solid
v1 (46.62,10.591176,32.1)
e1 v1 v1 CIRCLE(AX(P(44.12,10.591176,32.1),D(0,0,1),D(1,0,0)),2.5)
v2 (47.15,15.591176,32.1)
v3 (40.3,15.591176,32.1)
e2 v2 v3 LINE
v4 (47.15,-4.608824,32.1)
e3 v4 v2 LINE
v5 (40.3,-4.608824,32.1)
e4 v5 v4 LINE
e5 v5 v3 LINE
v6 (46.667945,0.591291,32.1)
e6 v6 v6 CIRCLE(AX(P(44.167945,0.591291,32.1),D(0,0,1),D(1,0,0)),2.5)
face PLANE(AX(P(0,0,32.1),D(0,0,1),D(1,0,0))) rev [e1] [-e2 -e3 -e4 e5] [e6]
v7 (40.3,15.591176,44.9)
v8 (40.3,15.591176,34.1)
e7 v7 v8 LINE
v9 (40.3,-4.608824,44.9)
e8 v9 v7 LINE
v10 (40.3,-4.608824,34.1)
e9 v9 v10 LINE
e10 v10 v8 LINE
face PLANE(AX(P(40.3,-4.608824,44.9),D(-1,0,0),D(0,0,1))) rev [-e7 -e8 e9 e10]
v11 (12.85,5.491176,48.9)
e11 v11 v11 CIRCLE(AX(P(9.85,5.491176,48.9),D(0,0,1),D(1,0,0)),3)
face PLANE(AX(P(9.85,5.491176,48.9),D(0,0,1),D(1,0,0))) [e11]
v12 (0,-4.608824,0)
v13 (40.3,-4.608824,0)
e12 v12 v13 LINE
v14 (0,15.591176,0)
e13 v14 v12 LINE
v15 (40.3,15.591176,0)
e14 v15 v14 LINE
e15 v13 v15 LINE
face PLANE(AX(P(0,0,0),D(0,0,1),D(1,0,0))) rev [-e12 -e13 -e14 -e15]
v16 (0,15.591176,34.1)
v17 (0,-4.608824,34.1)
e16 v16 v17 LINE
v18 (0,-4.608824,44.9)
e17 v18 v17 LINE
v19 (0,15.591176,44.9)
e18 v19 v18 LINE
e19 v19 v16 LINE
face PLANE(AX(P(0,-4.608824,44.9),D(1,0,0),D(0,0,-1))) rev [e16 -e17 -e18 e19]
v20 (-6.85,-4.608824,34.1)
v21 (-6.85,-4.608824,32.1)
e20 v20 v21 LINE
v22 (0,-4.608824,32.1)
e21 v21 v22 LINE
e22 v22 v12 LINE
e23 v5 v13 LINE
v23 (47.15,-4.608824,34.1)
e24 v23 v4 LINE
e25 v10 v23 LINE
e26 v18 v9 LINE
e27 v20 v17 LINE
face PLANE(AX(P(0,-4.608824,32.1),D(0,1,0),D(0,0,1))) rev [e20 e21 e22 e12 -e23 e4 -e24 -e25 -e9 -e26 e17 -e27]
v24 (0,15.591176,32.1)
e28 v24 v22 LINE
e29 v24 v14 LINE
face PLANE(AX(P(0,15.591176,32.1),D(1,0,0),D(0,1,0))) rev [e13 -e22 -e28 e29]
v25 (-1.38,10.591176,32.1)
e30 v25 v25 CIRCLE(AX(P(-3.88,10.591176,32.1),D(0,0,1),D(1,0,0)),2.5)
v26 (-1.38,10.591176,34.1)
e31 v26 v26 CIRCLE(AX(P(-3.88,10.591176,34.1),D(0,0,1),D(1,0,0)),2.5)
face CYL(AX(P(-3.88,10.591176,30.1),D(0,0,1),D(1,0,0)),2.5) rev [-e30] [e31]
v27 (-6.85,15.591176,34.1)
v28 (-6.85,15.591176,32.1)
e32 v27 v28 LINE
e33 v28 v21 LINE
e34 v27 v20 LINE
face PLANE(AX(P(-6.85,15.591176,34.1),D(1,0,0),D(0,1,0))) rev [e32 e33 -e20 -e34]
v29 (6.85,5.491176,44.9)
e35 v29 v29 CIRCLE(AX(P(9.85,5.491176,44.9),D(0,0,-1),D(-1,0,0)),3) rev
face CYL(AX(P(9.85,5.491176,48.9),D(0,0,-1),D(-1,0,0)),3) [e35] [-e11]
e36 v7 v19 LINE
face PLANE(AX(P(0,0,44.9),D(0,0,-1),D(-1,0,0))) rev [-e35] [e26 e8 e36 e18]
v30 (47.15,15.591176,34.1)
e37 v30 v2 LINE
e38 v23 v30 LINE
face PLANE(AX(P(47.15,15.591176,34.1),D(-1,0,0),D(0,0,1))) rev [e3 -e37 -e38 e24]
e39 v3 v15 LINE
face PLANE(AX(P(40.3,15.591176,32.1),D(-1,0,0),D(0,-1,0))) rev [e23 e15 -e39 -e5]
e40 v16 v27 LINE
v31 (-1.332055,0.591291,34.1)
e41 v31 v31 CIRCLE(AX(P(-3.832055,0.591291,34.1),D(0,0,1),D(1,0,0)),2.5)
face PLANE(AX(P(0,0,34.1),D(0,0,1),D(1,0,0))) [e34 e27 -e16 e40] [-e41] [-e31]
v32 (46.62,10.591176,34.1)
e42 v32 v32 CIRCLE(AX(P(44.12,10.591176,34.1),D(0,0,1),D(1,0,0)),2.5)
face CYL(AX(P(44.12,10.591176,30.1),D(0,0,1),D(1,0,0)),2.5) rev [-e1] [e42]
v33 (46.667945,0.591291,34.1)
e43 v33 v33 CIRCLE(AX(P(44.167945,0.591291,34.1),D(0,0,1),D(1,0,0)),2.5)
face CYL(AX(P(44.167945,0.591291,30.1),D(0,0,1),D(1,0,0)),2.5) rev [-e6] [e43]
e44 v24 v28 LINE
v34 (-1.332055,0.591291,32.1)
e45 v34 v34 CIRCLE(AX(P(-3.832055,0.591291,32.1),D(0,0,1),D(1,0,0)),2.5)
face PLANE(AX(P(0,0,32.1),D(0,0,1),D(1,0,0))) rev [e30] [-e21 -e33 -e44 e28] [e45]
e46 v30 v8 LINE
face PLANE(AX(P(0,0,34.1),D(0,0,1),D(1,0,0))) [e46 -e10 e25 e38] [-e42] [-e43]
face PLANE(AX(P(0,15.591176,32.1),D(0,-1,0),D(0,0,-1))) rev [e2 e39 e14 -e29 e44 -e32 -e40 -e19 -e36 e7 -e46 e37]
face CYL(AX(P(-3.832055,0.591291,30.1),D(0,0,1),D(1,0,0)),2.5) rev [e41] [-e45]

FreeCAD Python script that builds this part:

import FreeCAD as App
import Part
import Sketcher

V = App.Vector
Q = App.Units.Quantity

doc = App.newDocument("Part")
params = doc.addObject("Spreadsheet::Sheet", "Params")
for row, (alias, value) in enumerate([
    ("sketch1_width", "40.3 mm"),
    ("sketch1_height", "20.2 mm"),
    ("pad1_length", "32.1 mm"),
    ("sketch2_width", "54 mm"),
    ("sketch2_height", "20.2 mm"),
    ("pad2_length", "2 mm"),
    ("sketch3_width", "40.3 mm"),
    ("sketch3_height", "20.2 mm"),
    ("pad3_length", "10.8 mm"),
    ("sketch4_diameter", "6 mm"),
    ("pad4_length", "4 mm"),
    ("sketch5_diameter", "5 mm"),
    ("pocket1_length", "4 mm"),
], start=1):
    params.set(f"A{row}", alias)
    params.set(f"B{row}", "=" + value)
    params.setAlias(f"B{row}", alias)

body = doc.addObject("PartDesign::Body", "Body")

# Sketch on XY plane
sketch1 = body.newObject("Sketcher::SketchObject", "Sketch")
sketch1.AttachmentSupport = (doc.getObject("XY_Plane"), [""])
sketch1.MapMode = "FlatFace"
sketch1.addGeometry(Part.LineSegment(V(0, 16, 0), V(0, -5, 0)), False)
sketch1.addGeometry(Part.LineSegment(V(0, -5, 0), V(40, -5, 0)), False)
sketch1.addGeometry(Part.LineSegment(V(40, -5, 0), V(40, 16, 0)), False)
sketch1.addGeometry(Part.LineSegment(V(40, 16, 0), V(0, 16, 0)), False)
sketch1.addConstraint(Sketcher.Constraint("Coincident", 0, 2, 1, 1))
sketch1.addConstraint(Sketcher.Constraint("Coincident", 1, 2, 2, 1))
sketch1.addConstraint(Sketcher.Constraint("Coincident", 2, 2, 3, 1))
sketch1.addConstraint(Sketcher.Constraint("Coincident", 3, 2, 0, 1))
sketch1.addConstraint(Sketcher.Constraint("Vertical", 0))
sketch1.addConstraint(Sketcher.Constraint("Horizontal", 1))
sketch1.addConstraint(Sketcher.Constraint("Vertical", 2))
sketch1.addConstraint(Sketcher.Constraint("Horizontal", 3))
sketch1.addConstraint(Sketcher.Constraint("PointOnObject", 0, 2, -2))
sketch1.addConstraint(Sketcher.Constraint("DistanceX", 1, 1, 1, 2, Q("40.3 mm")))
sketch1.addConstraint(Sketcher.Constraint("DistanceY", 0, 2, 0, 1, Q("20.2 mm")))
sketch1.addConstraint(Sketcher.Constraint("DistanceY", 0, 2, -1, 1, Q("4.608824 mm")))
sketch1.setExpression("Constraints[9]", "Params.sketch1_width")
sketch1.setExpression("Constraints[10]", "Params.sketch1_height")
pad1 = body.newObject("PartDesign::Pad", "Pad")
pad1.Profile = sketch1
pad1.setExpression("Length", "Params.pad1_length")

# Sketch on XY plane
sketch2 = body.newObject("Sketcher::SketchObject", "Sketch001")
sketch2.AttachmentSupport = (doc.getObject("XY_Plane"), [""])
sketch2.MapMode = "FlatFace"
sketch2.AttachmentOffset = App.Placement(V(0, 0, 32.1), App.Rotation())
sketch2.addGeometry(Part.LineSegment(V(-7, 16, 0), V(-7, -5, 0)), False)
sketch2.addGeometry(Part.LineSegment(V(-7, -5, 0), V(47, -5, 0)), False)
sketch2.addGeometry(Part.LineSegment(V(47, -5, 0), V(47, 16, 0)), False)
sketch2.addGeometry(Part.LineSegment(V(47, 16, 0), V(-7, 16, 0)), False)
sketch2.addConstraint(Sketcher.Constraint("Coincident", 0, 2, 1, 1))
sketch2.addConstraint(Sketcher.Constraint("Coincident", 1, 2, 2, 1))
sketch2.addConstraint(Sketcher.Constraint("Coincident", 2, 2, 3, 1))
sketch2.addConstraint(Sketcher.Constraint("Coincident", 3, 2, 0, 1))
sketch2.addConstraint(Sketcher.Constraint("Vertical", 0))
sketch2.addConstraint(Sketcher.Constraint("Horizontal", 1))
sketch2.addConstraint(Sketcher.Constraint("Vertical", 2))
sketch2.addConstraint(Sketcher.Constraint("Horizontal", 3))
sketch2.addConstraint(Sketcher.Constraint("DistanceX", 1, 1, 1, 2, Q("54 mm")))
sketch2.addConstraint(Sketcher.Constraint("DistanceY", 0, 2, 0, 1, Q("20.2 mm")))
sketch2.addConstraint(Sketcher.Constraint("DistanceX", 0, 2, -1, 1, Q("6.85 mm")))
sketch2.addConstraint(Sketcher.Constraint("DistanceY", 0, 2, -1, 1, Q("4.608824 mm")))
sketch2.setExpression("Constraints[8]", "Params.sketch2_width")
sketch2.setExpression("Constraints[9]", "Params.sketch2_height")
pad2 = body.newObject("PartDesign::Pad", "Pad001")
pad2.Profile = sketch2
pad2.setExpression("Length", "Params.pad2_length")

# Sketch on XY plane
sketch3 = body.newObject("Sketcher::SketchObject", "Sketch002")
sketch3.AttachmentSupport = (doc.getObject("XY_Plane"), [""])
sketch3.MapMode = "FlatFace"
sketch3.AttachmentOffset = App.Placement(V(0, 0, 34.1), App.Rotation())
sketch3.addGeometry(Part.LineSegment(V(0, 16, 0), V(0, -5, 0)), False)
sketch3.addGeometry(Part.LineSegment(V(0, -5, 0), V(40, -5, 0)), False)
sketch3.addGeometry(Part.LineSegment(V(40, -5, 0), V(40, 16, 0)), False)
sketch3.addGeometry(Part.LineSegment(V(40, 16, 0), V(0, 16, 0)), False)
sketch3.addConstraint(Sketcher.Constraint("Coincident", 0, 2, 1, 1))
sketch3.addConstraint(Sketcher.Constraint("Coincident", 1, 2, 2, 1))
sketch3.addConstraint(Sketcher.Constraint("Coincident", 2, 2, 3, 1))
sketch3.addConstraint(Sketcher.Constraint("Coincident", 3, 2, 0, 1))
sketch3.addConstraint(Sketcher.Constraint("Vertical", 0))
sketch3.addConstraint(Sketcher.Constraint("Horizontal", 1))
sketch3.addConstraint(Sketcher.Constraint("Vertical", 2))
sketch3.addConstraint(Sketcher.Constraint("Horizontal", 3))
sketch3.addConstraint(Sketcher.Constraint("PointOnObject", 0, 2, -2))
sketch3.addConstraint(Sketcher.Constraint("DistanceX", 1, 1, 1, 2, Q("40.3 mm")))
sketch3.addConstraint(Sketcher.Constraint("DistanceY", 0, 2, 0, 1, Q("20.2 mm")))
sketch3.addConstraint(Sketcher.Constraint("DistanceY", 0, 2, -1, 1, Q("4.608824 mm")))
sketch3.setExpression("Constraints[9]", "Params.sketch3_width")
sketch3.setExpression("Constraints[10]", "Params.sketch3_height")
pad3 = body.newObject("PartDesign::Pad", "Pad002")
pad3.Profile = sketch3
pad3.setExpression("Length", "Params.pad3_length")

# Sketch on XY plane
sketch4 = body.newObject("Sketcher::SketchObject", "Sketch003")
sketch4.AttachmentSupport = (doc.getObject("XY_Plane"), [""])
sketch4.MapMode = "FlatFace"
sketch4.AttachmentOffset = App.Placement(V(0, 0, 44.9), App.Rotation())
sketch4.addGeometry(Part.Circle(V(9.8, 5.5, 0), V(0, 0, 1), 3), False)
sketch4.addConstraint(Sketcher.Constraint("Diameter", 0, Q("6 mm")))
sketch4.addConstraint(Sketcher.Constraint("DistanceX", -1, 1, 0, 3, Q("9.85 mm")))
sketch4.addConstraint(Sketcher.Constraint("DistanceY", -1, 1, 0, 3, Q("5.491176 mm")))
sketch4.setExpression("Constraints[0]", "Params.sketch4_diameter")
pad4 = body.newObject("PartDesign::Pad", "Pad003")
pad4.Profile = sketch4
pad4.setExpression("Length", "Params.pad4_length")

# Sketch on XY plane
sketch5 = body.newObject("Sketcher::SketchObject", "Sketch004")
sketch5.AttachmentSupport = (doc.getObject("XY_Plane"), [""])
sketch5.MapMode = "FlatFace"
sketch5.AttachmentOffset = App.Placement(V(0, 0, 34.1), App.Rotation())
sketch5.addGeometry(Part.Circle(V(-3.9, 10.6, 0), V(0, 0, 1), 2.5), False)
sketch5.addGeometry(Part.Circle(V(-3.8, 0.6, 0), V(0, 0, 1), 2.5), False)
sketch5.addGeometry(Part.Circle(V(44.1, 10.6, 0), V(0, 0, 1), 2.5), False)
sketch5.addGeometry(Part.Circle(V(44.2, 0.6, 0), V(0, 0, 1), 2.5), False)
sketch5.addConstraint(Sketcher.Constraint("Equal", 0, 1))
sketch5.addConstraint(Sketcher.Constraint("Equal", 1, 2))
sketch5.addConstraint(Sketcher.Constraint("Equal", 2, 3))
sketch5.addConstraint(Sketcher.Constraint("Horizontal", 0, 3, 2, 3))
sketch5.addConstraint(Sketcher.Constraint("Horizontal", 1, 3, 3, 3))
sketch5.addConstraint(Sketcher.Constraint("Diameter", 0, Q("5 mm")))
sketch5.addConstraint(Sketcher.Constraint("DistanceX", 0, 3, 2, 3, Q("48 mm")))
sketch5.addConstraint(Sketcher.Constraint("DistanceX", 1, 3, 3, 3, Q("48 mm")))
sketch5.addConstraint(Sketcher.Constraint("DistanceX", 0, 3, -1, 1, Q("3.88 mm")))
sketch5.addConstraint(Sketcher.Constraint("DistanceY", -1, 1, 1, 3, Q("0.591291 mm")))
sketch5.addConstraint(Sketcher.Constraint("DistanceY", -1, 1, 0, 3, Q("10.591176 mm")))
sketch5.addConstraint(Sketcher.Constraint("DistanceX", 1, 3, -1, 1, Q("3.832055 mm")))
sketch5.setExpression("Constraints[5]", "Params.sketch5_diameter")
pocket1 = body.newObject("PartDesign::Pocket", "Pocket")
pocket1.Profile = sketch5
pocket1.setExpression("Length", "Params.pocket1_length")

doc.recompute()
